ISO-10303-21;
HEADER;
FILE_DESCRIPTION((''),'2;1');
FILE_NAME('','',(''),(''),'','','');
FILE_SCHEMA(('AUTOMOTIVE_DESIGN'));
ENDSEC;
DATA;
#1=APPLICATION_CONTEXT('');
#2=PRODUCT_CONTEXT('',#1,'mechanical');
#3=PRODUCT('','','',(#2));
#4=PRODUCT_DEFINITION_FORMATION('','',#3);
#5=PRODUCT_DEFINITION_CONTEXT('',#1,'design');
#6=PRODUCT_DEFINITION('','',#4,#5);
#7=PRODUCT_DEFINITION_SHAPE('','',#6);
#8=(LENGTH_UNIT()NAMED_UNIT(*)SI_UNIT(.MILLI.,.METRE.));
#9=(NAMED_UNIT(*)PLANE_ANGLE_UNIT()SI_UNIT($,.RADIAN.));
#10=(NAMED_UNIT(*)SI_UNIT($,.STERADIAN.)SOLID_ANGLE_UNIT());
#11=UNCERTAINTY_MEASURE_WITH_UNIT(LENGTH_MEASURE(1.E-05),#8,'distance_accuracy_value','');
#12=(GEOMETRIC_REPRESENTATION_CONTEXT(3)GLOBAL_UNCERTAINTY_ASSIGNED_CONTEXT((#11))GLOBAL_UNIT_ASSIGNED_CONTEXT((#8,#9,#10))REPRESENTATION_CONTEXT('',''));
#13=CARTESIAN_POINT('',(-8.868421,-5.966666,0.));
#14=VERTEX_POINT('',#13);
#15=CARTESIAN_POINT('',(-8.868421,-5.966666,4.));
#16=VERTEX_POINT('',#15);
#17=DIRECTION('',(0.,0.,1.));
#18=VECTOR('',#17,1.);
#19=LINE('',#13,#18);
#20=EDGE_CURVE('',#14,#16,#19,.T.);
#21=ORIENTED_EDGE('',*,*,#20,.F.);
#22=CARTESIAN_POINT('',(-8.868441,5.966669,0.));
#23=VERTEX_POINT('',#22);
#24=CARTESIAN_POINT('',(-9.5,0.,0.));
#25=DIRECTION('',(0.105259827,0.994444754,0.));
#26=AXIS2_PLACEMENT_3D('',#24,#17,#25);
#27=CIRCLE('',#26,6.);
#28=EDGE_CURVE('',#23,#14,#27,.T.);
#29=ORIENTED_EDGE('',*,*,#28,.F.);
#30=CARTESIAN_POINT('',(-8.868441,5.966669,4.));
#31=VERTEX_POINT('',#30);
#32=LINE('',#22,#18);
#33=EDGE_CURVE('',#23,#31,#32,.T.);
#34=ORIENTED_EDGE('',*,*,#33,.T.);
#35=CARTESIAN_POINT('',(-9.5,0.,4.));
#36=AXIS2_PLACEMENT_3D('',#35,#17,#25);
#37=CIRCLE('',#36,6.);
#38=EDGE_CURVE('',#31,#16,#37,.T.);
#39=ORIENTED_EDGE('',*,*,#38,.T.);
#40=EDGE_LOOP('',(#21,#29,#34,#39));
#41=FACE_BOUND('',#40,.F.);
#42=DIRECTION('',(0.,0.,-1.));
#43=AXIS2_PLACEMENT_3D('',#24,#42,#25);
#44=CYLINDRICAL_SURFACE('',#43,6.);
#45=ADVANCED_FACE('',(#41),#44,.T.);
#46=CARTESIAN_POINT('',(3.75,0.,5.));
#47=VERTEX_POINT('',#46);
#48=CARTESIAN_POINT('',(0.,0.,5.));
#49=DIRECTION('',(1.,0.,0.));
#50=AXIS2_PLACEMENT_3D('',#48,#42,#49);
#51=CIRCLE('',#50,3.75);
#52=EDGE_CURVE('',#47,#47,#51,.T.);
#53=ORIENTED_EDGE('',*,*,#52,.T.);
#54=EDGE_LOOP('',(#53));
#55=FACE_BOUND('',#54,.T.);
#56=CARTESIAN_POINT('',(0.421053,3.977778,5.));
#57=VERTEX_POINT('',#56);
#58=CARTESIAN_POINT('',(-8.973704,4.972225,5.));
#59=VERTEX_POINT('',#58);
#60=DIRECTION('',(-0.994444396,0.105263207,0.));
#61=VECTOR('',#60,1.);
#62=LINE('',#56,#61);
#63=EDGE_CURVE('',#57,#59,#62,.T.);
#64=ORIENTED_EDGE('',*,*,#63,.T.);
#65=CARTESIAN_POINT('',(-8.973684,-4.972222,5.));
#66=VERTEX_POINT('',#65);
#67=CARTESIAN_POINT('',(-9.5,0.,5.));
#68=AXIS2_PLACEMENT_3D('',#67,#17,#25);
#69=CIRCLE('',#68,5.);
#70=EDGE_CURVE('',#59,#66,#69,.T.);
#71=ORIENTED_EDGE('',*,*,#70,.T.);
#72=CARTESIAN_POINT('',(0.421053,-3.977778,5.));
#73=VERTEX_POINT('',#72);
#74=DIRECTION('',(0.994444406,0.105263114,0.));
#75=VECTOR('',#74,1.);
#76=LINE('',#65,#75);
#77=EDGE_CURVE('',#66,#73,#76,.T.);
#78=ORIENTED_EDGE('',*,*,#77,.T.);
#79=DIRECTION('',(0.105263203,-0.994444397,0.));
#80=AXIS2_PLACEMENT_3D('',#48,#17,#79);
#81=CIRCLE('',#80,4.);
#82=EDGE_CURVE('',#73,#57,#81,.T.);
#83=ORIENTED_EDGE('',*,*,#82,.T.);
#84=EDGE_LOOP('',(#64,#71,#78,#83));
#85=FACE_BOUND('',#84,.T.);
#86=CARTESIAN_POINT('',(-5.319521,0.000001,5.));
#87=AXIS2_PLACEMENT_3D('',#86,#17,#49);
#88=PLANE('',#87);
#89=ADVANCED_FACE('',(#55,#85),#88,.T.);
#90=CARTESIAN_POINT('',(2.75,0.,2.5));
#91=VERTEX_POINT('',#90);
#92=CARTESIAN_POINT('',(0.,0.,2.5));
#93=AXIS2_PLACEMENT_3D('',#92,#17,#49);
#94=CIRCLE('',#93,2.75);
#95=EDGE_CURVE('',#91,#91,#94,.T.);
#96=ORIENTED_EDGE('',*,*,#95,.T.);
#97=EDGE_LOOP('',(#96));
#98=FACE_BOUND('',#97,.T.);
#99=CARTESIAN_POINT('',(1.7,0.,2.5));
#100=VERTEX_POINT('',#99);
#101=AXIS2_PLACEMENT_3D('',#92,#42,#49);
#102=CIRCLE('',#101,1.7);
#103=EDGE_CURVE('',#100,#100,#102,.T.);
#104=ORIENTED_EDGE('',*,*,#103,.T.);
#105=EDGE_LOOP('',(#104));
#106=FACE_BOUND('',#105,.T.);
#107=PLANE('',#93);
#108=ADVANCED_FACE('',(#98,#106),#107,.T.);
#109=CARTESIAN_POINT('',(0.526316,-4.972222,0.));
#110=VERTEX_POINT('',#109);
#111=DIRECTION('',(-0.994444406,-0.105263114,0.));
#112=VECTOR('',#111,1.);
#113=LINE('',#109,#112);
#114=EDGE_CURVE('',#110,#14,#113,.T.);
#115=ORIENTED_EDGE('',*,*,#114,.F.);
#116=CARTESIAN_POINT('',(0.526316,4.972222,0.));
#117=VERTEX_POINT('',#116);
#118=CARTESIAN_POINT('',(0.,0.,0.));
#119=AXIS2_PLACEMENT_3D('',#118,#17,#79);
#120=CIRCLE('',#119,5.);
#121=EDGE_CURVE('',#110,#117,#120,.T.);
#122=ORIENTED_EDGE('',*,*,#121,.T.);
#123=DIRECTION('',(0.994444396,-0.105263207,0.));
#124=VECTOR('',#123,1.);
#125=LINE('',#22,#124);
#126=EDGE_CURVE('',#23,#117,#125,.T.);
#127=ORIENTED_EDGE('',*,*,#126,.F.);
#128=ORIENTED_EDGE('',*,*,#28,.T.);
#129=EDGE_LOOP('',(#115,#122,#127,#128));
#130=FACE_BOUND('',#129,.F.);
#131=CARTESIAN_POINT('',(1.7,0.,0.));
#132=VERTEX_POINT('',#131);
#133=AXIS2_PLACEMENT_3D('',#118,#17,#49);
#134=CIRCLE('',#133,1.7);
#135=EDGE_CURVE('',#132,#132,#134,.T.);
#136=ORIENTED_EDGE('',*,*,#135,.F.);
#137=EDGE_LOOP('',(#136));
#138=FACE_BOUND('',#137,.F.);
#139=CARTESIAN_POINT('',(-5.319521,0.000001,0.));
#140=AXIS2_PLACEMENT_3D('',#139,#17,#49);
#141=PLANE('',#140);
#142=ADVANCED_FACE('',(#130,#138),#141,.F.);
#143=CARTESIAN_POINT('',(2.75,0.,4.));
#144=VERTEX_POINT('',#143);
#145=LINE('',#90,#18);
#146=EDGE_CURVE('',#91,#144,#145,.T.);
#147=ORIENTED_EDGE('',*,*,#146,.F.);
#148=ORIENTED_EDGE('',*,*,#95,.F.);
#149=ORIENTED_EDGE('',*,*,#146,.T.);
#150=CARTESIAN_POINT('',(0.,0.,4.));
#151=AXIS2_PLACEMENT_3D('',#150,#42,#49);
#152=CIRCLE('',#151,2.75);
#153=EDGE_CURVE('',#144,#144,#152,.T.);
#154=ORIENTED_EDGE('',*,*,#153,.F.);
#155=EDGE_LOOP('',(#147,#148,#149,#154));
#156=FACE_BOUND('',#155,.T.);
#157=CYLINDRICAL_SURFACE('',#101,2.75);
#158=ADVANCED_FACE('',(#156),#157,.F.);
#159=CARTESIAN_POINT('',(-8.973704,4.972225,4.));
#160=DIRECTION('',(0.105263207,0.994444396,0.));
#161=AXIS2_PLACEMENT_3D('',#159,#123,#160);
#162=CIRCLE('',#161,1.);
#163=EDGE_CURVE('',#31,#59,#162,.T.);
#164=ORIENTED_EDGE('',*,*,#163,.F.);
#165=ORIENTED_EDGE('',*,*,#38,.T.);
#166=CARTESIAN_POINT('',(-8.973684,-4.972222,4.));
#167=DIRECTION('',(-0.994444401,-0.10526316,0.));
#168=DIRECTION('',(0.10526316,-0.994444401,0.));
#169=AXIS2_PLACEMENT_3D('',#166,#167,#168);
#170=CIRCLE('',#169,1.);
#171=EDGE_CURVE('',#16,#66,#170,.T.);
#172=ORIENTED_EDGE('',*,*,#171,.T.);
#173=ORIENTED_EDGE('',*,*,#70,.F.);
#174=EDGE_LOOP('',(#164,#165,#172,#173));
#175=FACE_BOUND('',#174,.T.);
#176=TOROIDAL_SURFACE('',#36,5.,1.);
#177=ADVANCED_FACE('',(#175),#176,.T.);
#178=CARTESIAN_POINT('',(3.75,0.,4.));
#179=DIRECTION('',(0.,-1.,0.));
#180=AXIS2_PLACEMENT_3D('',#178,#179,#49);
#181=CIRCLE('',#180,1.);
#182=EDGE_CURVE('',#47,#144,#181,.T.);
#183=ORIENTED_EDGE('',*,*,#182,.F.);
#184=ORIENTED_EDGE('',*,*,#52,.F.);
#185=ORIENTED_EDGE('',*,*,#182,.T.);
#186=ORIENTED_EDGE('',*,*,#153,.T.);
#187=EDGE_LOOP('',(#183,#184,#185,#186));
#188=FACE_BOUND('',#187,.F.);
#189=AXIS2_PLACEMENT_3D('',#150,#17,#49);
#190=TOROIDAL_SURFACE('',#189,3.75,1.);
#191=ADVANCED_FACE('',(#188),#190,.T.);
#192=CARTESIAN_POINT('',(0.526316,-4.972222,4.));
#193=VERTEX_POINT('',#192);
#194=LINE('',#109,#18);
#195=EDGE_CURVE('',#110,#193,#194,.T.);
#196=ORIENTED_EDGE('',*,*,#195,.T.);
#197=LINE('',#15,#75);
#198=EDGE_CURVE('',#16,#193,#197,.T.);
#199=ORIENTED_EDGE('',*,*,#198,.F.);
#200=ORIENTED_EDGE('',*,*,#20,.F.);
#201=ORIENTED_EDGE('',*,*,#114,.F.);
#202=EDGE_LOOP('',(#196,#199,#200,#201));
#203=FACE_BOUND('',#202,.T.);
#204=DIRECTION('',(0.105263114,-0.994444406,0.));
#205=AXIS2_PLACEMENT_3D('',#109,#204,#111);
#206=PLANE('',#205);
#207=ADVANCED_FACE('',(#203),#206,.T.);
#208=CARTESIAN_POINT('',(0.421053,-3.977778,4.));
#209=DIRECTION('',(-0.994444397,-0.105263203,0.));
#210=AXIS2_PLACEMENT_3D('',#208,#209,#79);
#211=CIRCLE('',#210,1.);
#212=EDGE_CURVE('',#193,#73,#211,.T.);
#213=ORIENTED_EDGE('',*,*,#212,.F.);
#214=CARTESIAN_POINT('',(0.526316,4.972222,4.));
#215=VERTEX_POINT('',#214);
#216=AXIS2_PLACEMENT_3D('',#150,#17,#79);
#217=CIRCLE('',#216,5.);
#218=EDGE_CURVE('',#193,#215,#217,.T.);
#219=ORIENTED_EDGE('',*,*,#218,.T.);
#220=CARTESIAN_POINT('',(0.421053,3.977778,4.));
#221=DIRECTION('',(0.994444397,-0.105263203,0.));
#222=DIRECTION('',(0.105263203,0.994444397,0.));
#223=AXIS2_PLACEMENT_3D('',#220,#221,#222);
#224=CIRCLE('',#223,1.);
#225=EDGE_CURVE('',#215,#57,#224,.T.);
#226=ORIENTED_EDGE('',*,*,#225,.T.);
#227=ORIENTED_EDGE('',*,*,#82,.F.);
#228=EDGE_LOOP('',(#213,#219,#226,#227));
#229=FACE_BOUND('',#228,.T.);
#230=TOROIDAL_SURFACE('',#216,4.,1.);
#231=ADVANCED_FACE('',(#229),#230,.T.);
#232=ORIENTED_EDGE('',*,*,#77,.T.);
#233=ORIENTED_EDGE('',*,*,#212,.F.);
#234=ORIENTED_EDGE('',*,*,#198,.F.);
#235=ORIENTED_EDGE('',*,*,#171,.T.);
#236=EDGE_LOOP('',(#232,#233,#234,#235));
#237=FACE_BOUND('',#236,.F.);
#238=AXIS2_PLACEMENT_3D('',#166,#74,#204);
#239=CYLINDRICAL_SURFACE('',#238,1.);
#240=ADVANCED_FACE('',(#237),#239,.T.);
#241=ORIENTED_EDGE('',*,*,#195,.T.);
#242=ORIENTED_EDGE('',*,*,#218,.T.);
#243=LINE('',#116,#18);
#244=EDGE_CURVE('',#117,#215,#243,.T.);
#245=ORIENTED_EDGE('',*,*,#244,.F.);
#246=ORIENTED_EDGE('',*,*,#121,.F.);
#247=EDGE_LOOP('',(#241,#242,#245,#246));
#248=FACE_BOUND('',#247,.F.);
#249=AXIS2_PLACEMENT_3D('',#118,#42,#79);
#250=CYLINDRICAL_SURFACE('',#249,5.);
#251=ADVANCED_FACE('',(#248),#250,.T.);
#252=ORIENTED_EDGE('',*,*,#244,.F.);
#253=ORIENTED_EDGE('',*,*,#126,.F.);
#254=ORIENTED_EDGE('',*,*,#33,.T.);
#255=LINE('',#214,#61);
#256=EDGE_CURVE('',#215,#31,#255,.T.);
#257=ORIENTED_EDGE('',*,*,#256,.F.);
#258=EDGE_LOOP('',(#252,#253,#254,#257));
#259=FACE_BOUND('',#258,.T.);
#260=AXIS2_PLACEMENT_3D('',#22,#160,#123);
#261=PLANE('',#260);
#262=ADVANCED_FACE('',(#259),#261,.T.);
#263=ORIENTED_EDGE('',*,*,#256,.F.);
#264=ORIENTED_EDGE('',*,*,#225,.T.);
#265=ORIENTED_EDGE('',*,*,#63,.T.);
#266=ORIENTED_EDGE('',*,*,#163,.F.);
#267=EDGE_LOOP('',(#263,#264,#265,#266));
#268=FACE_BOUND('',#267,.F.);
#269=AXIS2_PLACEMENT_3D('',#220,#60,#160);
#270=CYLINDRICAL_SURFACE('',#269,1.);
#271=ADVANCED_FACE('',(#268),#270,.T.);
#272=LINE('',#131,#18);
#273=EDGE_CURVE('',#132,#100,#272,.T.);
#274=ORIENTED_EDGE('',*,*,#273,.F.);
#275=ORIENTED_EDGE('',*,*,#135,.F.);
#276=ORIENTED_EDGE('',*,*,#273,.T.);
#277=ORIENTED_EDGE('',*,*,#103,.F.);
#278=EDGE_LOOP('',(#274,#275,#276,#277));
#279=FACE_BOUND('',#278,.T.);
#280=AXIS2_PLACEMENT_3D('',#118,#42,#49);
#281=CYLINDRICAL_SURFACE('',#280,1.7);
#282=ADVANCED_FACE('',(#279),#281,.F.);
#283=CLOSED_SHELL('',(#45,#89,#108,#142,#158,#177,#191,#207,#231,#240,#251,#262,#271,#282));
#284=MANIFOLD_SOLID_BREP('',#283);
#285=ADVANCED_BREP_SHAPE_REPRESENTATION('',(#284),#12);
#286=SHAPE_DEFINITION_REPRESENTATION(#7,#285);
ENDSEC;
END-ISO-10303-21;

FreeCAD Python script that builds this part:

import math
import FreeCAD as App
import Part
import Sketcher

V = App.Vector
Q = App.Units.Quantity


def edges_at(feature, points):
    """Names of the edges that pass closest to the given points."""
    edges = feature.Shape.Edges
    near = lambda p: min(range(len(edges)), key=lambda i: edges[i].distToShape(Part.Vertex(*p))[0])
    return sorted({f"Edge{near(p) + 1}" for p in points})

doc = App.newDocument("Part")
body = doc.addObject("PartDesign::Body", "Body")

sketch1 = body.newObject("Sketcher::SketchObject", "Sketch")
sketch1.AttachmentSupport = (doc.getObject("XY_Plane"), [""])
sketch1.MapMode = "FlatFace"
sketch1.AttachmentOffset = App.Placement(V(0, 0, 2.5), App.Rotation())
sketch1.addGeometry(Part.Circle(V(0, 0, 0), V(0, 0, 1), 2.75), False)
sketch1.addConstraint(Sketcher.Constraint("Coincident", 0, 3, -1, 1))
sketch1.addConstraint(Sketcher.Constraint("Diameter", 0, Q("5.5 mm")))
pad1 = body.newObject("PartDesign::Pad", "Pad")
pad1.Profile = sketch1
pad1.Length = 10
body2 = doc.addObject("PartDesign::Body", "Body001")

sketch2 = body2.newObject("Sketcher::SketchObject", "Sketch001")
sketch2.AttachmentSupport = (doc.getObject("XY_Plane001"), [""])
sketch2.MapMode = "FlatFace"
sketch2.addGeometry(Part.ArcOfCircle(Part.Circle(V(0, 0, 0), V(0, 0, 1), 5), math.radians(-83.957669), math.radians(83.957669)), False)
sketch2.addGeometry(Part.LineSegment(V(0.526316, 4.972222, 0), V(-8.868441, 5.966669, 0)), False)
sketch2.addGeometry(Part.ArcOfCircle(Part.Circle(V(-9.5, 0, 0), V(0, 0, 1), 6), math.radians(83.957863), math.radians(276.042329)), False)
sketch2.addGeometry(Part.LineSegment(V(-8.868421, -5.966666, 0), V(0.526316, -4.972222, 0)), False)
sketch2.addGeometry(Part.Circle(V(0, 0, 0), V(0, 0, 1), 1.7), False)
sketch2.addConstraint(Sketcher.Constraint("Tangent", 0, 2, 1, 1))
sketch2.addConstraint(Sketcher.Constraint("Coincident", 1, 2, 2, 1))
sketch2.addConstraint(Sketcher.Constraint("Tangent", 2, 2, 3, 1))
sketch2.addConstraint(Sketcher.Constraint("Tangent", 3, 2, 0, 1))
sketch2.addConstraint(Sketcher.Constraint("Coincident", 0, 3, -1, 1))
sketch2.addConstraint(Sketcher.Constraint("Coincident", 4, 3, -1, 1))
sketch2.addConstraint(Sketcher.Constraint("PointOnObject", 2, 3, -1))
sketch2.addConstraint(Sketcher.Constraint("Radius", 0, Q("5 mm")))
sketch2.addConstraint(Sketcher.Constraint("Radius", 2, Q("6 mm")))
sketch2.addConstraint(Sketcher.Constraint("Diameter", 4, Q("3.4 mm")))
sketch2.addConstraint(Sketcher.Constraint("DistanceX", 2, 3, -1, 1, Q("9.5 mm")))
sketch2.addConstraint(Sketcher.Constraint("DistanceX", 1, 2, -1, 1, Q("8.868441 mm")))
pad2 = body2.newObject("PartDesign::Pad", "Pad001")
pad2.Profile = sketch2
pad2.Length = 5
doc.recompute()

boolean = body2.newObject("PartDesign::Boolean", "Boolean")
boolean.Type = "Cut"
boolean.addObjects([body])
doc.recompute()

fillet = body2.newObject("PartDesign::Fillet", "Fillet")
fillet.Base = (boolean, edges_at(boolean, [
    (5, 0, 5),
    (-4.171, -5.469, 5),
    (-4.171, 5.469, 5),
    (-15.5, 0, 5),
    (-2.75, 0, 5),
]))
fillet.Radius = 1

doc.recompute()
